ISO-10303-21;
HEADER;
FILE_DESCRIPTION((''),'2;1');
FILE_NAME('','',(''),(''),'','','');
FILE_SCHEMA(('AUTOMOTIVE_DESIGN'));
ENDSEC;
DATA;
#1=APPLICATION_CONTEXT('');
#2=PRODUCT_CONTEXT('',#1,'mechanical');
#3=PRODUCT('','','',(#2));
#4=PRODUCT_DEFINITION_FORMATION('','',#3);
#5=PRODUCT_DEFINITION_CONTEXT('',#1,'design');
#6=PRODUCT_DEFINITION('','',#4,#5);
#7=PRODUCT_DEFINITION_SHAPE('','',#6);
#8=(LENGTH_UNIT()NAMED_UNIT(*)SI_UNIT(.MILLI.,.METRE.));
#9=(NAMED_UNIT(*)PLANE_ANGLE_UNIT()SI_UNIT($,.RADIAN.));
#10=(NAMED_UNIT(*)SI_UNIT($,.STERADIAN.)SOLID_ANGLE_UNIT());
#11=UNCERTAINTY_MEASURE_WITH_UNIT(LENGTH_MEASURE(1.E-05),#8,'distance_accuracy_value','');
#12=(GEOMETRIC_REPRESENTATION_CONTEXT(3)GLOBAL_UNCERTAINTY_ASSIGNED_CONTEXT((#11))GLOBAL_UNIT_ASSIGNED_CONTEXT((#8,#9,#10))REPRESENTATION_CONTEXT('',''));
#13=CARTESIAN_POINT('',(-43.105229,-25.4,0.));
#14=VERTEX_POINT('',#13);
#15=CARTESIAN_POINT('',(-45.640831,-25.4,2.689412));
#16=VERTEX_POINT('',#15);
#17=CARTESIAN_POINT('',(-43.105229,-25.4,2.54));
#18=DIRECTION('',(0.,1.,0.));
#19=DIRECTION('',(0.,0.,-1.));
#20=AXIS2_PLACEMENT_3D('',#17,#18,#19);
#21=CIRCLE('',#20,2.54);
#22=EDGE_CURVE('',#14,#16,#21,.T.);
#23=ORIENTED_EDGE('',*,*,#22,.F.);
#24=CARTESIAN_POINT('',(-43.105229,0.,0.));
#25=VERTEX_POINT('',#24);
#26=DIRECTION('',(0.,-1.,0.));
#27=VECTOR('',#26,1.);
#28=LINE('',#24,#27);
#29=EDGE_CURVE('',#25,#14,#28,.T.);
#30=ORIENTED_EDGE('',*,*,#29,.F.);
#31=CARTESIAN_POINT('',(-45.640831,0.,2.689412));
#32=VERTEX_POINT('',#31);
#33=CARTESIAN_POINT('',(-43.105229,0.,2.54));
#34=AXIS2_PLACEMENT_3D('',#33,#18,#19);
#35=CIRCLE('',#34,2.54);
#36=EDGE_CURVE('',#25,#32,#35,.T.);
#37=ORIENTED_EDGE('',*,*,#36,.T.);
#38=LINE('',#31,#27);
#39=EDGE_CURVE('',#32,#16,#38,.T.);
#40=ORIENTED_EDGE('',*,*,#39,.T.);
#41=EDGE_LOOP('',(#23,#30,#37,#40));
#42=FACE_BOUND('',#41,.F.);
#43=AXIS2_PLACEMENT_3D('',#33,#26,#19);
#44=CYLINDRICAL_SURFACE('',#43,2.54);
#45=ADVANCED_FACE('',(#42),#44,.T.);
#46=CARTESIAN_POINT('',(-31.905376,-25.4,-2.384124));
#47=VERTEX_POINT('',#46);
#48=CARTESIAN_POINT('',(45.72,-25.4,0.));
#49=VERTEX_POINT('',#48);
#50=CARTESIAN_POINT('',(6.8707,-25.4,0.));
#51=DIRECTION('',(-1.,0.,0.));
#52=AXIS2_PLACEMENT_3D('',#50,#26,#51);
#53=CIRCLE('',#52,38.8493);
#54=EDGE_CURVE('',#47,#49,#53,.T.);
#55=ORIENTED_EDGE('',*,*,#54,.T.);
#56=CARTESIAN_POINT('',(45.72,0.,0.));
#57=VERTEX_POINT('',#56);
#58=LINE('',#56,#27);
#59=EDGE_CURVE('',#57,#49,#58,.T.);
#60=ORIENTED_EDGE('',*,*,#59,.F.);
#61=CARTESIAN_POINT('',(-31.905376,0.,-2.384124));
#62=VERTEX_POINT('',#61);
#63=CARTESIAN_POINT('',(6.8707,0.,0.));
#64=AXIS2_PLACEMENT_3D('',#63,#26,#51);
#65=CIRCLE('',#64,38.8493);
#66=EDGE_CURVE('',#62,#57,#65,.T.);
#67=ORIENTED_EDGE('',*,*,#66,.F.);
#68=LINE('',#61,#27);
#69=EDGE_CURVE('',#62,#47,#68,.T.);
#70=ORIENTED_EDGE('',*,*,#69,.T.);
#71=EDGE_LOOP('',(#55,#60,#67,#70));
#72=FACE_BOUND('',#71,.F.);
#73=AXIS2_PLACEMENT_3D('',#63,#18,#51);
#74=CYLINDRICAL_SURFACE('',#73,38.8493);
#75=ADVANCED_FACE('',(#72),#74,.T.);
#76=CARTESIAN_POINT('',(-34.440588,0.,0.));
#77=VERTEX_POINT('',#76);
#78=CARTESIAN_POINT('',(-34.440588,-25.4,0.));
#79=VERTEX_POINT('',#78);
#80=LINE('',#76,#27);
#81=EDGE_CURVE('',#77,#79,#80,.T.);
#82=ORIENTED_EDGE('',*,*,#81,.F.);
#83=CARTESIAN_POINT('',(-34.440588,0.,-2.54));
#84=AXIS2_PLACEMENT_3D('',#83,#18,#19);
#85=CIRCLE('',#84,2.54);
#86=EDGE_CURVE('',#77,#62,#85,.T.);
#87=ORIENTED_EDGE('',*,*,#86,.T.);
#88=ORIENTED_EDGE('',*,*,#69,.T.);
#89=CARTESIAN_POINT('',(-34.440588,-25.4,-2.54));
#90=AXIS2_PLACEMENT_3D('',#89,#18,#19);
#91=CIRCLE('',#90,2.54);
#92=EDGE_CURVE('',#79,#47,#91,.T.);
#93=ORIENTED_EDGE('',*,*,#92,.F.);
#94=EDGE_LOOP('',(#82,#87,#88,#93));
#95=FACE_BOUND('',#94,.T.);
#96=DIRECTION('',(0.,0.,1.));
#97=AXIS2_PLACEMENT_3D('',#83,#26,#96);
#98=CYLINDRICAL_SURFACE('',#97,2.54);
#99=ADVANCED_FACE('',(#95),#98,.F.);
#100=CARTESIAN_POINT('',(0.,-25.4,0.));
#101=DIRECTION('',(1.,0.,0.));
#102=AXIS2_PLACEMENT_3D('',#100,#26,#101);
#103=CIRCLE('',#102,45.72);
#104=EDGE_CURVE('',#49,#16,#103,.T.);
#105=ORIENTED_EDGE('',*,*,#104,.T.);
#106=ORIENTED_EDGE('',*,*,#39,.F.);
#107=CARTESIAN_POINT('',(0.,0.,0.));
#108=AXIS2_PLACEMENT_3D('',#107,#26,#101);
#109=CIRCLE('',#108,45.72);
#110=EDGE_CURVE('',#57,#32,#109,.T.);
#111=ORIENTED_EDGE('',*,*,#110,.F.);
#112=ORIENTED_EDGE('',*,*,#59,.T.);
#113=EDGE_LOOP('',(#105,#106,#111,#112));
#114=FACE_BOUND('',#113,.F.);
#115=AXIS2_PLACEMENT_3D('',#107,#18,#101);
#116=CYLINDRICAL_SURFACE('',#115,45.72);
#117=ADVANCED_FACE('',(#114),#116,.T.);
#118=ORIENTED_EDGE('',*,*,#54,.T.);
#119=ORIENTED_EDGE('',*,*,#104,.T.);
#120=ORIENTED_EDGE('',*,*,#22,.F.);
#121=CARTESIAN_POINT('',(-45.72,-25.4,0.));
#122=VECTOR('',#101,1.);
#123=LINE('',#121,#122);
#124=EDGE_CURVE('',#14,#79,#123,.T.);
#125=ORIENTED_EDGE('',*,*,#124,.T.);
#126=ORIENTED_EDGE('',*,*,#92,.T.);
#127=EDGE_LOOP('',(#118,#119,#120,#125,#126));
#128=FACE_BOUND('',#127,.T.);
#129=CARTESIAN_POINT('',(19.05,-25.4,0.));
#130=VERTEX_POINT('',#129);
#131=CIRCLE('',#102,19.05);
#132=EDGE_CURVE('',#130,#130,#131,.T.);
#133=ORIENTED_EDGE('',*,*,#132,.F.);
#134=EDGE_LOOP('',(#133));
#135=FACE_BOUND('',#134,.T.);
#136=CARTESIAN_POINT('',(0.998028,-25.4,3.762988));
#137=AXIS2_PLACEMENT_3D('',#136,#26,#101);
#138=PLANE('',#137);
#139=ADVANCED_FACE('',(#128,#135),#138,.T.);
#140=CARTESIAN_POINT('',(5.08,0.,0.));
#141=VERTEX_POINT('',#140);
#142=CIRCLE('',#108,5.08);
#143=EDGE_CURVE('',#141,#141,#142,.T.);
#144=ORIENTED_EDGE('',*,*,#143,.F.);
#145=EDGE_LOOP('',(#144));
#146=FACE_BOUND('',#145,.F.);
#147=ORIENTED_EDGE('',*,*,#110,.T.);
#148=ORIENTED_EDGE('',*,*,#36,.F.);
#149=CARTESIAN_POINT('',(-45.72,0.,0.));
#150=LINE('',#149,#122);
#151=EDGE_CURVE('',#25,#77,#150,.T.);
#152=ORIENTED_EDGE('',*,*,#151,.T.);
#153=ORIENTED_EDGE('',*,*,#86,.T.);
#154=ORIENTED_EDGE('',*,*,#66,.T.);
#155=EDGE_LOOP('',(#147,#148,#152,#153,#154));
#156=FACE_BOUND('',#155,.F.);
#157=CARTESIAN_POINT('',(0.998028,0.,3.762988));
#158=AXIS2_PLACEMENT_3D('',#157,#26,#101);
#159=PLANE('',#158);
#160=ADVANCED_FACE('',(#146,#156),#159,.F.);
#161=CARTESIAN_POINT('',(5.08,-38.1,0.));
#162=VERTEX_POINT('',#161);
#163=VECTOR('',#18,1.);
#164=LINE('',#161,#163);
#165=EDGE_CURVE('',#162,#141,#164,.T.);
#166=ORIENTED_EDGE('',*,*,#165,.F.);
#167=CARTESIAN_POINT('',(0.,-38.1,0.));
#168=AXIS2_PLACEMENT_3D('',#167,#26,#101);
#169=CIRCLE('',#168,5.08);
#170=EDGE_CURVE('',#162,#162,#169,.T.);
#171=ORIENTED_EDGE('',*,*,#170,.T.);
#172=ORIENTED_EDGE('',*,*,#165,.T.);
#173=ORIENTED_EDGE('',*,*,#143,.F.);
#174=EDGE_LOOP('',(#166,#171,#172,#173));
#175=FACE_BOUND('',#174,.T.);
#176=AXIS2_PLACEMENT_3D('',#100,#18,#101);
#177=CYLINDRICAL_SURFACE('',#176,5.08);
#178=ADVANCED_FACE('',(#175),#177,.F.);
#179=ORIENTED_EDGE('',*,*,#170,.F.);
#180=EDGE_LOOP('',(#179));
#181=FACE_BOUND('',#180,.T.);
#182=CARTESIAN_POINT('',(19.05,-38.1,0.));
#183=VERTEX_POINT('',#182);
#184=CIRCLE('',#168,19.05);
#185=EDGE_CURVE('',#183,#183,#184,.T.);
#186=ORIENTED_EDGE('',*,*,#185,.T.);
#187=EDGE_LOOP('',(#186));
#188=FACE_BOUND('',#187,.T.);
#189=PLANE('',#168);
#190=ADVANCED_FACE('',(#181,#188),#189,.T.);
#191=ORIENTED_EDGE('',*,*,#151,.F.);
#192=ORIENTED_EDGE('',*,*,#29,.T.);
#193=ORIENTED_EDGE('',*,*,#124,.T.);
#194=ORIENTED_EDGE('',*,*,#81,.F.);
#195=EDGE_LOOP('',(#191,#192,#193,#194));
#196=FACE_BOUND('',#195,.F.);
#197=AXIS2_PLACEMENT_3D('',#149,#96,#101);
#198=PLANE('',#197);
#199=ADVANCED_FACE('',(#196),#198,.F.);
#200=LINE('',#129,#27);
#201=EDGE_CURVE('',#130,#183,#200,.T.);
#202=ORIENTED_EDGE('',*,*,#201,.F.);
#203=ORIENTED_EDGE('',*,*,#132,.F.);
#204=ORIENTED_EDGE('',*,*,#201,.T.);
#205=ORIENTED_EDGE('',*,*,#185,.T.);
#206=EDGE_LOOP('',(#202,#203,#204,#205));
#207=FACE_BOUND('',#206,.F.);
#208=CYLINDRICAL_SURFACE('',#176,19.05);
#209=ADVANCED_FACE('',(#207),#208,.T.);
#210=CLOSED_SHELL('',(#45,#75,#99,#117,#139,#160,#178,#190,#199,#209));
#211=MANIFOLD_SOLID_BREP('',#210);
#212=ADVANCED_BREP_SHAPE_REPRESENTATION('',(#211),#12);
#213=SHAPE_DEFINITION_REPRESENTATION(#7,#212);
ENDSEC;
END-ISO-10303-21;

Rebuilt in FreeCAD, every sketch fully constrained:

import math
import FreeCAD as App
import Part
import Sketcher

V = App.Vector
Q = App.Units.Quantity


def edges_at(feature, points):
    """Names of the edges that pass closest to the given points."""
    edges = feature.Shape.Edges
    near = lambda p: min(range(len(edges)), key=lambda i: edges[i].distToShape(Part.Vertex(*p))[0])
    return sorted({f"Edge{near(p) + 1}" for p in points})

doc = App.newDocument("Part")
body = doc.addObject("PartDesign::Body", "Body")

# Sketch on XZ plane
sketch1 = doc.addObject("Sketcher::SketchObject", "Sketch")
body.addObject(sketch1)
sketch1.AttachmentSupport = (doc.XZ_Plane, [""])
sketch1.MapMode = "FlatFace"
sketch1.addGeometry(Part.ArcOfCircle(Part.Circle(V(7, 0, 0), V(0, 0, 1), 39), math.radians(180), math.radians(360)), False)
sketch1.addGeometry(Part.ArcOfCircle(Part.Circle(V(0, 0, 0), V(0, 0, 1), 46), math.radians(0), math.radians(180)), False)
sketch1.addGeometry(Part.LineSegment(V(-46, 0, 0), V(-32, 0, 0)), False)
sketch1.addConstraint(Sketcher.Constraint("Tangent", 0, 2, 1, 1))
sketch1.addConstraint(Sketcher.Constraint("Coincident", 1, 2, 2, 1))
sketch1.addConstraint(Sketcher.Constraint("Coincident", 2, 2, 0, 1))
sketch1.addConstraint(Sketcher.Constraint("Horizontal", 2))
sketch1.addConstraint(Sketcher.Constraint("Coincident", 1, 3, -1, 1))
sketch1.addConstraint(Sketcher.Constraint("PointOnObject", 0, 3, -1))
sketch1.addConstraint(Sketcher.Constraint("PointOnObject", 1, 2, -1))
sketch1.addConstraint(Sketcher.Constraint("Radius", 1, Q("1.8 in")))
sketch1.addConstraint(Sketcher.Constraint("Radius", 0, Q("1.5295 in")))
pad1 = doc.addObject("PartDesign::Pad", "Pad")
body.addObject(pad1)
pad1.Profile = sketch1
pad1.Length = Q("1 in")

# Sketch on XZ plane
sketch2 = doc.addObject("Sketcher::SketchObject", "Sketch001")
body.addObject(sketch2)
sketch2.AttachmentSupport = (doc.XZ_Plane, [""])
sketch2.MapMode = "FlatFace"
sketch2.AttachmentOffset = App.Placement(V(0, 0, 1 * 25.4), App.Rotation())
sketch2.addGeometry(Part.Circle(V(0, 0, 0), V(0, 0, 1), 5), False)
sketch2.addConstraint(Sketcher.Constraint("Coincident", 0, 3, -1, 1))
sketch2.addConstraint(Sketcher.Constraint("Diameter", 0, Q("0.4 in")))
pocket1 = doc.addObject("PartDesign::Pocket", "Pocket")
body.addObject(pocket1)
pocket1.Profile = sketch2
pocket1.Length = Q("10 in")
pocket1.Midplane = True
doc.recompute()

fillet = doc.addObject("PartDesign::Fillet", "Fillet")
body.addObject(fillet)
fillet.Base = (pocket1, edges_at(pocket1, [(-45.72, -12.7, 0)]))
fillet.Radius = Q("0.1 in")
doc.recompute()

fillet2 = doc.addObject("PartDesign::Fillet", "Fillet001")
body.addObject(fillet2)
fillet2.Base = (fillet, edges_at(fillet, [(-31.979, -12.7, 0)]))
fillet2.Radius = Q("0.1 in")

# Sketch on XZ plane
sketch3 = doc.addObject("Sketcher::SketchObject", "Sketch002")
body.addObject(sketch3)
sketch3.AttachmentSupport = (doc.XZ_Plane, [""])
sketch3.MapMode = "FlatFace"
sketch3.AttachmentOffset = App.Placement(V(0, 0, 1 * 25.4), App.Rotation())
sketch3.addGeometry(Part.Circle(V(0, 0, 0), V(0, 0, 1), 19), False)
sketch3.addGeometry(Part.Circle(V(0, 0, 0), V(0, 0, 1), 5), False)
sketch3.addConstraint(Sketcher.Constraint("Coincident", 0, 3, -1, 1))
sketch3.addConstraint(Sketcher.Constraint("Coincident", 1, 3, -1, 1))
sketch3.addConstraint(Sketcher.Constraint("Diameter", 0, Q("1.5 in")))
sketch3.addConstraint(Sketcher.Constraint("Diameter", 1, Q("0.4 in")))
pad2 = doc.addObject("PartDesign::Pad", "Pad001")
body.addObject(pad2)
pad2.Profile = sketch3
pad2.Length = Q("0.5 in")

doc.recompute()
